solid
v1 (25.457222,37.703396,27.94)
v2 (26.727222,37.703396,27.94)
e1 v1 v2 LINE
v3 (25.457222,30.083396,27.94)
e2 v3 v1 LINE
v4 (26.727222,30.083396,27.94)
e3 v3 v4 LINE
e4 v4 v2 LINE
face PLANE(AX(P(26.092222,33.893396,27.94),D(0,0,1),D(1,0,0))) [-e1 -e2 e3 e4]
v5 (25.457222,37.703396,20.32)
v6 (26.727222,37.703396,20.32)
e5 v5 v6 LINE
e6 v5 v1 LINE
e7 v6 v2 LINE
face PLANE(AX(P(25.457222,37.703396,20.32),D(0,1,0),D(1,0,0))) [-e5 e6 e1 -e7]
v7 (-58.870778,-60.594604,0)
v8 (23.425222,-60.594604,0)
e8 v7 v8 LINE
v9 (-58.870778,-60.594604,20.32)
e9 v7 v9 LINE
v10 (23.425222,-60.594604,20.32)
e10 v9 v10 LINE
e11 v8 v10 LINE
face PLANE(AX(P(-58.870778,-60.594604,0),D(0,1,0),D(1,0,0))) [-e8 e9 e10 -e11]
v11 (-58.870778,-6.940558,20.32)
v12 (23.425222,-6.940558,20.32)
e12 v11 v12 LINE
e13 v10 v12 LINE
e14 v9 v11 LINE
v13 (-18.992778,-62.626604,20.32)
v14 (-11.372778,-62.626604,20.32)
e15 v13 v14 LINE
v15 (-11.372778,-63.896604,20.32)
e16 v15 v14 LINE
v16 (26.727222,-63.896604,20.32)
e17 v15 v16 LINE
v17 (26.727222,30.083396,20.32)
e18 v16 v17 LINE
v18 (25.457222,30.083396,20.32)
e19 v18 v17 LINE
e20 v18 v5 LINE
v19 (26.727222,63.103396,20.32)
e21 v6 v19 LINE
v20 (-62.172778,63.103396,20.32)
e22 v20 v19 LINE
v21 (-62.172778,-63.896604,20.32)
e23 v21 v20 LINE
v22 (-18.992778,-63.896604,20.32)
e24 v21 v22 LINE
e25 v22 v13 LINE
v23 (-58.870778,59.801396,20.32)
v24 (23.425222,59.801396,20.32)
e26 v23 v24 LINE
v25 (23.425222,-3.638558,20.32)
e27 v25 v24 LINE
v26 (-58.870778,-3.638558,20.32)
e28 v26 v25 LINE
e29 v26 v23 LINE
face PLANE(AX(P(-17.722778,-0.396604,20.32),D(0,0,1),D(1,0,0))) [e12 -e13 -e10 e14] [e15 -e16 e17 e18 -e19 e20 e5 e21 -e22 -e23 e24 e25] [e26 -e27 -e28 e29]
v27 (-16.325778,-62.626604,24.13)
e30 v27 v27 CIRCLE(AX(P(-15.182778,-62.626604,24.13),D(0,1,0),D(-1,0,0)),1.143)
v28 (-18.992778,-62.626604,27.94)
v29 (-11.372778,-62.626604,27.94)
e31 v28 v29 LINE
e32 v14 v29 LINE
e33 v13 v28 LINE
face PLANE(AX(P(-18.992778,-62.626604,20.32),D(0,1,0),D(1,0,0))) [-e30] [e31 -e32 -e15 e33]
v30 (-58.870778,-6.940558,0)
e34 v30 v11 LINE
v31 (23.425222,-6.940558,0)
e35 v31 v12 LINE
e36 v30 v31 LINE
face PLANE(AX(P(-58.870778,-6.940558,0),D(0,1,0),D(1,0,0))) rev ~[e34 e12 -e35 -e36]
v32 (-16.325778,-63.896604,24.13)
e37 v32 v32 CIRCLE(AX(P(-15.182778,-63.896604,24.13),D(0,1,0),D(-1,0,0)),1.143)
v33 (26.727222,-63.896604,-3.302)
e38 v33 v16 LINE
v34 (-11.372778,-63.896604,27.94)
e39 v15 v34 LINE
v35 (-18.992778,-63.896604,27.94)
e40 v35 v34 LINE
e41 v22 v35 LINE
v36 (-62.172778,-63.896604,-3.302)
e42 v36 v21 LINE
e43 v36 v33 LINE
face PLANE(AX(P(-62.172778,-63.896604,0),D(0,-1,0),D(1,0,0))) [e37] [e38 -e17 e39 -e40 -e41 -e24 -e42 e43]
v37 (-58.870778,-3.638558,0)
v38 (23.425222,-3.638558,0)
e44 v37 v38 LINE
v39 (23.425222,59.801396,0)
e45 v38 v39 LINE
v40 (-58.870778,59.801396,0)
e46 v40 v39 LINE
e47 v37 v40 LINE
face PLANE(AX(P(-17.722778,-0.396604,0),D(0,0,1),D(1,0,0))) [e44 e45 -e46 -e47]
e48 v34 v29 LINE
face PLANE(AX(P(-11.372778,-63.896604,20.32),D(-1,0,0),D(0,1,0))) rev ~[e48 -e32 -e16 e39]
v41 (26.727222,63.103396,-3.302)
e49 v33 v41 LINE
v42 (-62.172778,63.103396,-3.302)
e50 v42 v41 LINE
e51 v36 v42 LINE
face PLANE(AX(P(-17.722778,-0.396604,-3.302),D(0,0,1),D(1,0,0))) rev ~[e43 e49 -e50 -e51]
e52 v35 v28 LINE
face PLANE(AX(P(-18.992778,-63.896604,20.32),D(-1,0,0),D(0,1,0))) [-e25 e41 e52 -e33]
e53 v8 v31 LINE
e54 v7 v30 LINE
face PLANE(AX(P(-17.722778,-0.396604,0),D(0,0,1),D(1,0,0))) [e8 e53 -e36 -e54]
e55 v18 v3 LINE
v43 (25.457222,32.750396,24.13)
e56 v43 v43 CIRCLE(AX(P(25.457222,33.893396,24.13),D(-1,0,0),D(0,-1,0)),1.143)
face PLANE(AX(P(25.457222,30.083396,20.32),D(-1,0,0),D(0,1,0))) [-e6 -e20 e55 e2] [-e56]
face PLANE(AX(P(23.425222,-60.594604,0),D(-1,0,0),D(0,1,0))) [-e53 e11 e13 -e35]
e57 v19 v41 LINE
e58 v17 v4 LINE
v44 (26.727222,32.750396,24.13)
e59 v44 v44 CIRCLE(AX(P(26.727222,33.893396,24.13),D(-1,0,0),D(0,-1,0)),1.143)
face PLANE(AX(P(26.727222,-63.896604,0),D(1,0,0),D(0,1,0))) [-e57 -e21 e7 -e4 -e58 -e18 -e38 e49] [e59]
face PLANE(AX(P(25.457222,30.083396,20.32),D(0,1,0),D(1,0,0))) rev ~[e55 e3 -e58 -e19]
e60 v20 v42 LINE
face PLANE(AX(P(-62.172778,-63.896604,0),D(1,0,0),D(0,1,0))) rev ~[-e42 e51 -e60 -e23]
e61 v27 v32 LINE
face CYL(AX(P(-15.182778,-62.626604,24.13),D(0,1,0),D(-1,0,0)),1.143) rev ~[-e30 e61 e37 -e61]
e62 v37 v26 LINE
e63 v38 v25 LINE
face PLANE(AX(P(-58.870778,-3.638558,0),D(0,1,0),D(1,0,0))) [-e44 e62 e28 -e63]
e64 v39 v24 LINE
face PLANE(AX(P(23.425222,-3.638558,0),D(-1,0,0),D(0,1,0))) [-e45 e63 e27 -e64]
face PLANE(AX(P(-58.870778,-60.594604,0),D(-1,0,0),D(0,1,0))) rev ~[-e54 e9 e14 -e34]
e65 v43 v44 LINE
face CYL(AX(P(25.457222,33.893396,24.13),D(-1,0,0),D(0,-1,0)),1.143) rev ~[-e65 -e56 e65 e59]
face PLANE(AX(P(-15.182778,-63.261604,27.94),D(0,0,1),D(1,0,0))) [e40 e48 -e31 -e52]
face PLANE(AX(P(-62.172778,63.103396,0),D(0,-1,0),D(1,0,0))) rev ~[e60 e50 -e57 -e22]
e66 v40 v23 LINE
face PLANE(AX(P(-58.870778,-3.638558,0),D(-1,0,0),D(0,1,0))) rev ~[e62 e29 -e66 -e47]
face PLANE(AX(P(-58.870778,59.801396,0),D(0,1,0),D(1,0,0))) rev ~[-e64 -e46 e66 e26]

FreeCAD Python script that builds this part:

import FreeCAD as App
import Part
import Sketcher
Q = App.Units.Quantity

doc = App.newDocument("Part")
body = doc.addObject("PartDesign::Body", "Body")

# Sketch on XY plane
sketch1 = body.newObject("Sketcher::SketchObject", "Sketch")
sketch1.AttachmentSupport = (doc.getObject("XY_Plane"), [""])
sketch1.MapMode = "FlatFace"
sketch1.addGeometry(Part.LineSegment(App.Vector(-62, 63, 0), App.Vector(-62, -64, 0)), False)
sketch1.addGeometry(Part.LineSegment(App.Vector(-62, -64, 0), App.Vector(27, -64, 0)), False)
sketch1.addGeometry(Part.LineSegment(App.Vector(27, -64, 0), App.Vector(27, 63, 0)), False)
sketch1.addGeometry(Part.LineSegment(App.Vector(27, 63, 0), App.Vector(-62, 63, 0)), False)
sketch1.addGeometry(Part.LineSegment(App.Vector(23, -61, 0), App.Vector(-59, -61, 0)), False)
sketch1.addGeometry(Part.LineSegment(App.Vector(-59, -61, 0), App.Vector(-59, -7, 0)), False)
sketch1.addGeometry(Part.LineSegment(App.Vector(-59, -7, 0), App.Vector(23, -7, 0)), False)
sketch1.addGeometry(Part.LineSegment(App.Vector(23, -7, 0), App.Vector(23, -61, 0)), False)
sketch1.addGeometry(Part.LineSegment(App.Vector(23, -4, 0), App.Vector(-59, -4, 0)), False)
sketch1.addGeometry(Part.LineSegment(App.Vector(-59, -4, 0), App.Vector(-59, 60, 0)), False)
sketch1.addGeometry(Part.LineSegment(App.Vector(-59, 60, 0), App.Vector(23, 60, 0)), False)
sketch1.addGeometry(Part.LineSegment(App.Vector(23, 60, 0), App.Vector(23, -4, 0)), False)
sketch1.addConstraint(Sketcher.Constraint("Coincident", 0, 2, 1, 1))
sketch1.addConstraint(Sketcher.Constraint("Coincident", 1, 2, 2, 1))
sketch1.addConstraint(Sketcher.Constraint("Coincident", 2, 2, 3, 1))
sketch1.addConstraint(Sketcher.Constraint("Coincident", 3, 2, 0, 1))
sketch1.addConstraint(Sketcher.Constraint("Coincident", 4, 2, 5, 1))
sketch1.addConstraint(Sketcher.Constraint("Coincident", 5, 2, 6, 1))
sketch1.addConstraint(Sketcher.Constraint("Coincident", 6, 2, 7, 1))
sketch1.addConstraint(Sketcher.Constraint("Coincident", 7, 2, 4, 1))
sketch1.addConstraint(Sketcher.Constraint("Coincident", 8, 2, 9, 1))
sketch1.addConstraint(Sketcher.Constraint("Coincident", 9, 2, 10, 1))
sketch1.addConstraint(Sketcher.Constraint("Coincident", 10, 2, 11, 1))
sketch1.addConstraint(Sketcher.Constraint("Coincident", 11, 2, 8, 1))
sketch1.addConstraint(Sketcher.Constraint("Vertical", 0))
sketch1.addConstraint(Sketcher.Constraint("Horizontal", 1))
sketch1.addConstraint(Sketcher.Constraint("Vertical", 2))
sketch1.addConstraint(Sketcher.Constraint("Horizontal", 3))
sketch1.addConstraint(Sketcher.Constraint("Horizontal", 4))
sketch1.addConstraint(Sketcher.Constraint("Vertical", 5))
sketch1.addConstraint(Sketcher.Constraint("Horizontal", 6))
sketch1.addConstraint(Sketcher.Constraint("Vertical", 7))
sketch1.addConstraint(Sketcher.Constraint("Horizontal", 8))
sketch1.addConstraint(Sketcher.Constraint("Vertical", 9))
sketch1.addConstraint(Sketcher.Constraint("Horizontal", 10))
sketch1.addConstraint(Sketcher.Constraint("Vertical", 11))
sketch1.addConstraint(Sketcher.Constraint("Vertical", 5, 2, 8, 2))
sketch1.addConstraint(Sketcher.Constraint("Vertical", 7, 2, 10, 2))
sketch1.addConstraint(Sketcher.Constraint("DistanceY", 0, 2, 0, 1, Q("5 in")))
sketch1.addConstraint(Sketcher.Constraint("DistanceX", 1, 1, 1, 2, Q("3.5 in")))
sketch1.addConstraint(Sketcher.Constraint("DistanceX", 4, 2, 4, 1, Q("3.24 in")))
sketch1.addConstraint(Sketcher.Constraint("DistanceX", 0, 2, 4, 2, Q("0.13 in")))
sketch1.addConstraint(Sketcher.Constraint("DistanceY", 0, 2, 4, 2, Q("0.13 in")))
sketch1.addConstraint(Sketcher.Constraint("DistanceY", 5, 2, 8, 2, Q("0.13 in")))
sketch1.addConstraint(Sketcher.Constraint("DistanceY", 9, 2, 3, 2, Q("0.13 in")))
sketch1.addConstraint(Sketcher.Constraint("DistanceY", 5, 1, 5, 2, Q("53.654046 mm")))
sketch1.addConstraint(Sketcher.Constraint("DistanceY", 5, 2, -1, 1, Q("6.940558 mm")))
sketch1.addConstraint(Sketcher.Constraint("DistanceX", 0, 2, -1, 1, Q("62.172778 mm")))
pad1 = body.newObject("PartDesign::Pad", "Pad")
pad1.Profile = sketch1
pad1.Length = Q("0.8 in")

# Sketch on XY plane
sketch2 = body.newObject("Sketcher::SketchObject", "Sketch001")
sketch2.AttachmentSupport = (doc.getObject("XY_Plane"), [""])
sketch2.MapMode = "FlatFace"
sketch2.addGeometry(Part.LineSegment(App.Vector(-62, 63, 0), App.Vector(-62, -64, 0)), False)
sketch2.addGeometry(Part.LineSegment(App.Vector(-62, -64, 0), App.Vector(27, -64, 0)), False)
sketch2.addGeometry(Part.LineSegment(App.Vector(27, -64, 0), App.Vector(27, 63, 0)), False)
sketch2.addGeometry(Part.LineSegment(App.Vector(27, 63, 0), App.Vector(-62, 63, 0)), False)
sketch2.addConstraint(Sketcher.Constraint("Coincident", 0, 2, 1, 1))
sketch2.addConstraint(Sketcher.Constraint("Coincident", 1, 2, 2, 1))
sketch2.addConstraint(Sketcher.Constraint("Coincident", 2, 2, 3, 1))
sketch2.addConstraint(Sketcher.Constraint("Coincident", 3, 2, 0, 1))
sketch2.addConstraint(Sketcher.Constraint("Vertical", 0))
sketch2.addConstraint(Sketcher.Constraint("Horizontal", 1))
sketch2.addConstraint(Sketcher.Constraint("Vertical", 2))
sketch2.addConstraint(Sketcher.Constraint("Horizontal", 3))
sketch2.addConstraint(Sketcher.Constraint("DistanceY", 0, 2, 0, 1, Q("5 in")))
sketch2.addConstraint(Sketcher.Constraint("DistanceX", 1, 1, 1, 2, Q("3.5 in")))
sketch2.addConstraint(Sketcher.Constraint("DistanceX", 0, 2, -1, 1, Q("62.172778 mm")))
sketch2.addConstraint(Sketcher.Constraint("DistanceY", 0, 2, -1, 1, Q("63.896604 mm")))
pad2 = body.newObject("PartDesign::Pad", "Pad001")
pad2.Profile = sketch2
pad2.Length = Q("0.13 in")
pad2.Reversed = True

# Sketch on XY plane
sketch3 = body.newObject("Sketcher::SketchObject", "Sketch002")
sketch3.AttachmentSupport = (doc.getObject("XY_Plane"), [""])
sketch3.MapMode = "FlatFace"
sketch3.AttachmentOffset = App.Placement(App.Vector(0, 0, 0.8 * 25.4), App.Rotation())
sketch3.addGeometry(Part.LineSegment(App.Vector(25.5, 37.7, 0), App.Vector(25.5, 30.1, 0)), False)
sketch3.addGeometry(Part.LineSegment(App.Vector(25.5, 30.1, 0), App.Vector(26.7, 30.1, 0)), False)
sketch3.addGeometry(Part.LineSegment(App.Vector(26.7, 30.1, 0), App.Vector(26.7, 37.7, 0)), False)
sketch3.addGeometry(Part.LineSegment(App.Vector(26.7, 37.7, 0), App.Vector(25.5, 37.7, 0)), False)
sketch3.addGeometry(Part.LineSegment(App.Vector(-19, -62.6, 0), App.Vector(-19, -63.9, 0)), False)
sketch3.addGeometry(Part.LineSegment(App.Vector(-19, -63.9, 0), App.Vector(-11.4, -63.9, 0)), False)
sketch3.addGeometry(Part.LineSegment(App.Vector(-11.4, -63.9, 0), App.Vector(-11.4, -62.6, 0)), False)
sketch3.addGeometry(Part.LineSegment(App.Vector(-11.4, -62.6, 0), App.Vector(-19, -62.6, 0)), False)
sketch3.addConstraint(Sketcher.Constraint("Coincident", 0, 2, 1, 1))
sketch3.addConstraint(Sketcher.Constraint("Coincident", 1, 2, 2, 1))
sketch3.addConstraint(Sketcher.Constraint("Coincident", 2, 2, 3, 1))
sketch3.addConstraint(Sketcher.Constraint("Coincident", 3, 2, 0, 1))
sketch3.addConstraint(Sketcher.Constraint("Coincident", 4, 2, 5, 1))
sketch3.addConstraint(Sketcher.Constraint("Coincident", 5, 2, 6, 1))
sketch3.addConstraint(Sketcher.Constraint("Coincident", 6, 2, 7, 1))
sketch3.addConstraint(Sketcher.Constraint("Coincident", 7, 2, 4, 1))
sketch3.addConstraint(Sketcher.Constraint("Vertical", 0))
sketch3.addConstraint(Sketcher.Constraint("Horizontal", 1))
sketch3.addConstraint(Sketcher.Constraint("Vertical", 2))
sketch3.addConstraint(Sketcher.Constraint("Horizontal", 3))
sketch3.addConstraint(Sketcher.Constraint("Vertical", 4))
sketch3.addConstraint(Sketcher.Constraint("Horizontal", 5))
sketch3.addConstraint(Sketcher.Constraint("Vertical", 6))
sketch3.addConstraint(Sketcher.Constraint("Horizontal", 7))
sketch3.addConstraint(Sketcher.Constraint("Equal", 7, 0))
sketch3.addConstraint(Sketcher.Constraint("Equal", 3, 4))
sketch3.addConstraint(Sketcher.Constraint("DistanceX", 5, 1, 5, 2, Q("0.3 in")))
sketch3.addConstraint(Sketcher.Constraint("DistanceY", 4, 2, 3, 2, Q("4 in")))
sketch3.addConstraint(Sketcher.Constraint("DistanceX", 1, 1, 1, 2, Q("0.05 in")))
sketch3.addConstraint(Sketcher.Constraint("DistanceX", 4, 2, 1, 2, Q("1.8 in")))
sketch3.addConstraint(Sketcher.Constraint("DistanceX", 4, 2, -1, 1, Q("18.992778 mm")))
sketch3.addConstraint(Sketcher.Constraint("DistanceY", -1, 1, 0, 2, Q("30.083396 mm")))
pad3 = body.newObject("PartDesign::Pad", "Pad002")
pad3.Profile = sketch3
pad3.Length = Q("0.3 in")

# Sketch on XZ plane
sketch4 = body.newObject("Sketcher::SketchObject", "Sketch003")
sketch4.AttachmentSupport = (doc.getObject("XZ_Plane"), [""])
sketch4.MapMode = "FlatFace"
sketch4.AttachmentOffset = App.Placement(App.Vector(0, 0, 62.626604), App.Rotation())
sketch4.addGeometry(Part.Circle(App.Vector(-15.2, 24.1, 0), App.Vector(0, 0, 1), 1.1), False)
sketch4.addConstraint(Sketcher.Constraint("Diameter", 0, Q("0.09 in")))
sketch4.addConstraint(Sketcher.Constraint("DistanceY", -1, 1, 0, 3, Q("0.95 in")))
sketch4.addConstraint(Sketcher.Constraint("DistanceX", 0, 3, -1, 1, Q("15.182778 mm")))
pocket1 = body.newObject("PartDesign::Pocket", "Pocket")
pocket1.Profile = sketch4
pocket1.Type = "ThroughAll"
pocket1.Reversed = True

# Sketch on YZ plane
sketch5 = body.newObject("Sketcher::SketchObject", "Sketch004")
sketch5.AttachmentSupport = (doc.getObject("YZ_Plane"), [""])
sketch5.MapMode = "FlatFace"
sketch5.AttachmentOffset = App.Placement(App.Vector(0, 0, 25.457222), App.Rotation())
sketch5.addGeometry(Part.Circle(App.Vector(33.9, 24.1, 0), App.Vector(0, 0, 1), 1.1), False)
sketch5.addConstraint(Sketcher.Constraint("Diameter", 0, Q("0.09 in")))
sketch5.addConstraint(Sketcher.Constraint("DistanceY", -1, 1, 0, 3, Q("0.95 in")))
sketch5.addConstraint(Sketcher.Constraint("DistanceX", -1, 1, 0, 3, Q("33.893396 mm")))
pocket2 = body.newObject("PartDesign::Pocket", "Pocket001")
pocket2.Profile = sketch5
pocket2.Type = "ThroughAll"
pocket2.Reversed = True

doc.recompute()
